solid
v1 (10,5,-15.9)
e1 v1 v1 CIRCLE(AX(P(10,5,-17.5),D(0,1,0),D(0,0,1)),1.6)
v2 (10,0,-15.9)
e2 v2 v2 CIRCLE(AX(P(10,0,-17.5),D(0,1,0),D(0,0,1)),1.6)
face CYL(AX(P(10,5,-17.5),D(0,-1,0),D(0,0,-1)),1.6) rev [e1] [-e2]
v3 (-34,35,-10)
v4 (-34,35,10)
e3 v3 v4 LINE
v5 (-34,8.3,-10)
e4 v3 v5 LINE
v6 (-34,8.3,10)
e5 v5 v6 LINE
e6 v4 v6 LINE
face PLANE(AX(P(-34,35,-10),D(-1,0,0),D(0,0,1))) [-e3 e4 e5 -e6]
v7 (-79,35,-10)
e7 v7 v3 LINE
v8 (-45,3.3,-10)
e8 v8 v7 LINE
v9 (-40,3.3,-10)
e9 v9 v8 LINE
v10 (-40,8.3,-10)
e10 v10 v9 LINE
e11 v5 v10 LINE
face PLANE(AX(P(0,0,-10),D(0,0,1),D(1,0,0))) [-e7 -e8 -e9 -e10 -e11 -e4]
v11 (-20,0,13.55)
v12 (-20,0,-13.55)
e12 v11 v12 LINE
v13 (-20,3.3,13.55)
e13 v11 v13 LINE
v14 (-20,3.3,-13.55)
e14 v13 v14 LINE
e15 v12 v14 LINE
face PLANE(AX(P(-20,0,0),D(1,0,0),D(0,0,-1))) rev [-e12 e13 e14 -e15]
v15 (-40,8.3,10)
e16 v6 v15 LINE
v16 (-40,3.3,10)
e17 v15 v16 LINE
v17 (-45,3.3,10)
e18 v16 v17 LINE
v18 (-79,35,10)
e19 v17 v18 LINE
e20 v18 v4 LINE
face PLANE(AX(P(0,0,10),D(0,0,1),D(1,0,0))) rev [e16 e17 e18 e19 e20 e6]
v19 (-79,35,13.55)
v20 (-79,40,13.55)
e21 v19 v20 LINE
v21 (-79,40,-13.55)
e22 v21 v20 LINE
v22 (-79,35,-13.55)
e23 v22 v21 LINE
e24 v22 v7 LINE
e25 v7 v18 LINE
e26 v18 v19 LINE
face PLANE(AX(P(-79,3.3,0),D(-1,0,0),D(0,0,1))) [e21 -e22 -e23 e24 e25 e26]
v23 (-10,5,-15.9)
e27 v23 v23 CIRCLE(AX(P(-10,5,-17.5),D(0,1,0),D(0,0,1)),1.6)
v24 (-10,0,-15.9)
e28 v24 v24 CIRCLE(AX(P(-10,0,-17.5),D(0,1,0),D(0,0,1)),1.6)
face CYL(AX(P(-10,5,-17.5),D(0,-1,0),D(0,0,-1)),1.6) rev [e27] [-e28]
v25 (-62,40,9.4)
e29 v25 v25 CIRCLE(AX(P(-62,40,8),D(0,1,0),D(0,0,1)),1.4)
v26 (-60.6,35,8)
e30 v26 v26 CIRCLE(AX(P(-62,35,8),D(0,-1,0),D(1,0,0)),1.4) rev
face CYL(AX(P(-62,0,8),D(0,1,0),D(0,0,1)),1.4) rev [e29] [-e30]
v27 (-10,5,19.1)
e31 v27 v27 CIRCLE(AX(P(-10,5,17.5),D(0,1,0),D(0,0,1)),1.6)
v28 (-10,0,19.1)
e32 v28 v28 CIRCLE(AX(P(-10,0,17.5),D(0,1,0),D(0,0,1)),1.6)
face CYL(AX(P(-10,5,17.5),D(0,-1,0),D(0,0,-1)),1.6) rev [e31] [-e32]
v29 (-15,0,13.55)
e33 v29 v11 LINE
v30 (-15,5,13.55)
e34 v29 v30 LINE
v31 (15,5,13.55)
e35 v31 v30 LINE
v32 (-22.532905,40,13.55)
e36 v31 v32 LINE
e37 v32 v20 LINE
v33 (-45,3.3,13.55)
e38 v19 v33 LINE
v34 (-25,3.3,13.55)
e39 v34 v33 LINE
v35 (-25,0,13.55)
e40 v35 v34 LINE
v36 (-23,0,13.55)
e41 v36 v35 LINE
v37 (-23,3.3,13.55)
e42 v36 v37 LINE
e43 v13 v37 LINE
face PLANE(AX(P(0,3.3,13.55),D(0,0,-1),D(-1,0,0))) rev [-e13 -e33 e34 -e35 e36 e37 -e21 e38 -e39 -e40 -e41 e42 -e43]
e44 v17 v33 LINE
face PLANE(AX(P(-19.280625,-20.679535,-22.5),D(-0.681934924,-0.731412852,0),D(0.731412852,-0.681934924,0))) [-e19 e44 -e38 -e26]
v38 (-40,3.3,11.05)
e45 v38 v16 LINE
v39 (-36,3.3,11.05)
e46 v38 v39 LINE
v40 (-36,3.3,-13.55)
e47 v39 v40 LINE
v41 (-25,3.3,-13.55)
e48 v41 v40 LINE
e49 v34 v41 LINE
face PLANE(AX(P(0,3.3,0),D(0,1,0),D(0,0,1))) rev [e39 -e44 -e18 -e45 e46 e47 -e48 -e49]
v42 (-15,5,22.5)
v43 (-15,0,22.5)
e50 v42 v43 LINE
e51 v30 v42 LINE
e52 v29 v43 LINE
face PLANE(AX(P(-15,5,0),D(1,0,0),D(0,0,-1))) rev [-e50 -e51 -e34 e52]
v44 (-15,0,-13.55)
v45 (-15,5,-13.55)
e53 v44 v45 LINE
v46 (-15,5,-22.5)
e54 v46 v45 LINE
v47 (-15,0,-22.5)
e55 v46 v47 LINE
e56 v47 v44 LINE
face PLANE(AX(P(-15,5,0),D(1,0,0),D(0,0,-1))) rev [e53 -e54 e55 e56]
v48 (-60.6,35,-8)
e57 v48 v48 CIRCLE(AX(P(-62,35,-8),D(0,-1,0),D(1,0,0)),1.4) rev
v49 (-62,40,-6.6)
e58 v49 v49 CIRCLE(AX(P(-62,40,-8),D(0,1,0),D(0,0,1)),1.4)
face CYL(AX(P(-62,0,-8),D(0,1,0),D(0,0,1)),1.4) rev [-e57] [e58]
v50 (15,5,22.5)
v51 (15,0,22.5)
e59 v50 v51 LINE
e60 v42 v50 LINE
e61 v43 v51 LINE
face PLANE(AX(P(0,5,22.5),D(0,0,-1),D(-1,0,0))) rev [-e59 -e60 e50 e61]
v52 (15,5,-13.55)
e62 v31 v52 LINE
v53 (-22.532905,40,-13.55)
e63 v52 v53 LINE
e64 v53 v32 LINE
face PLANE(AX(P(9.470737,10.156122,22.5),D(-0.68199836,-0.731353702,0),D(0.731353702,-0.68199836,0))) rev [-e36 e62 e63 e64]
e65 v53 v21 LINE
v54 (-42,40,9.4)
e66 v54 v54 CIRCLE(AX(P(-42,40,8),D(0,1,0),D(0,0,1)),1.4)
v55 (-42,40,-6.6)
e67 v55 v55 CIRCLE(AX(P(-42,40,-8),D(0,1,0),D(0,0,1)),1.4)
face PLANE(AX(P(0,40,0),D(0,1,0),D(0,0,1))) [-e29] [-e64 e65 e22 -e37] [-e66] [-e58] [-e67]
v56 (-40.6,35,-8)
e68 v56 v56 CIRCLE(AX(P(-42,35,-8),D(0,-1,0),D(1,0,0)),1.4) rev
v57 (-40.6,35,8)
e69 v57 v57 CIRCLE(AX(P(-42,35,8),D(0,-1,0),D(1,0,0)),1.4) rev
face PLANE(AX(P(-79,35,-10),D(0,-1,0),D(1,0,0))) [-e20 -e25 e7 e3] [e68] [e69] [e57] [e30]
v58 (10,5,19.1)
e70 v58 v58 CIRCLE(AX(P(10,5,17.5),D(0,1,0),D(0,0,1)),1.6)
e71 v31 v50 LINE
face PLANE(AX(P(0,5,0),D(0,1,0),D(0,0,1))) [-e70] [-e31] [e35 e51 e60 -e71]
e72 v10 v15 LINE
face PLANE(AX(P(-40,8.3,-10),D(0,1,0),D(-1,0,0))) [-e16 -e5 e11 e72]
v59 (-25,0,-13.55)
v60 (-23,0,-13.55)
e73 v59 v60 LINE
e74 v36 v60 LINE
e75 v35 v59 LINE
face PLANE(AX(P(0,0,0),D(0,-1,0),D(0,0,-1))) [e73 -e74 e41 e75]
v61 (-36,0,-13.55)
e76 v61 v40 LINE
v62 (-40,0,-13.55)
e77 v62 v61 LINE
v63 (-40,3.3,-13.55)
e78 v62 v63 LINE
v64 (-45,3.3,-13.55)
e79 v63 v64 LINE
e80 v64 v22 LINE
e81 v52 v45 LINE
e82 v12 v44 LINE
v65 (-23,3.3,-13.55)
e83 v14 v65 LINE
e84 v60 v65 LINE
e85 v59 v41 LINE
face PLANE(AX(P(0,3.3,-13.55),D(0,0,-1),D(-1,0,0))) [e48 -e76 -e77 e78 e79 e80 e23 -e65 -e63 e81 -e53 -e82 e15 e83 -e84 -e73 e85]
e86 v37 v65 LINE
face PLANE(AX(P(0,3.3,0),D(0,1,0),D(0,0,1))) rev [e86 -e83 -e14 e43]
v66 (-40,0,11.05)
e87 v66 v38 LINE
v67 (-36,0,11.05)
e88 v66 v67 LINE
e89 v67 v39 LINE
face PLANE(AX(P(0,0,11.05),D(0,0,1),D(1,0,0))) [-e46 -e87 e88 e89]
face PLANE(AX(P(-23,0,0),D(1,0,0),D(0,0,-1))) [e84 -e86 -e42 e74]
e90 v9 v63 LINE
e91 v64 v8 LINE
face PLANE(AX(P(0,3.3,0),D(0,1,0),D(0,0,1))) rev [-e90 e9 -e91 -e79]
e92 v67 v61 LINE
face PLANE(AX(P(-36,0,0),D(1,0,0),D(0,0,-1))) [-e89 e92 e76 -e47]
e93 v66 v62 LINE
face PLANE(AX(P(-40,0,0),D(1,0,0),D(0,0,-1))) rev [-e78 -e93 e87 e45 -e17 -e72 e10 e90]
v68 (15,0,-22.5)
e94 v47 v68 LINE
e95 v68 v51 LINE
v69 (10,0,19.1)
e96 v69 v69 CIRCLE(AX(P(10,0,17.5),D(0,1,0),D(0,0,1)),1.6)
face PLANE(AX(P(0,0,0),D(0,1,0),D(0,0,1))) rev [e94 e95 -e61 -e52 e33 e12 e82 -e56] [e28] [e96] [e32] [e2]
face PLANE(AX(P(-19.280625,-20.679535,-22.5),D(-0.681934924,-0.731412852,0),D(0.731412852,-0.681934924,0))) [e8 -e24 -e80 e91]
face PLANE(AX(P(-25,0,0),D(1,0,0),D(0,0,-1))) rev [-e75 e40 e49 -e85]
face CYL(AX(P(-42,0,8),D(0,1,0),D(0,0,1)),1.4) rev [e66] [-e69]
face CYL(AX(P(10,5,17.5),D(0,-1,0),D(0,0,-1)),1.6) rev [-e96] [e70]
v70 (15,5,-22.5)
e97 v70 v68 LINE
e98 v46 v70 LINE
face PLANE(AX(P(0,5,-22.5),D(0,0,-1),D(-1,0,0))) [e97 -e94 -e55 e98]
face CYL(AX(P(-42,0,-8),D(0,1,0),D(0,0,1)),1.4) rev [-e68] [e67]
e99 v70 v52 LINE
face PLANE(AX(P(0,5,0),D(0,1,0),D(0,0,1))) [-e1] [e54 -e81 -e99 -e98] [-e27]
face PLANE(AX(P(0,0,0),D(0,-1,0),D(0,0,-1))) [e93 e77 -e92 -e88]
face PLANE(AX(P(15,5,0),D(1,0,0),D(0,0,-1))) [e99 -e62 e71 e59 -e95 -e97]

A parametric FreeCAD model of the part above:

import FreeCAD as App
import Part
import Sketcher
Q = App.Units.Quantity


def add_polygon(sketch, points):
    """Adds a closed chain of lines whose ends are joined by coincident constraints."""
    first, n = sketch.GeometryCount, len(points)
    for a, b in zip(points, points[1:] + points[:1]):
        sketch.addGeometry(Part.LineSegment(App.Vector(*a, 0), App.Vector(*b, 0)), False)
    for i in range(n):
        sketch.addConstraint(Sketcher.Constraint("Coincident", first + i, 2, first + (i + 1) % n, 1))

doc = App.newDocument("Part")
body = doc.addObject("PartDesign::Body", "Body")

sketch1 = body.newObject("Sketcher::SketchObject", "Sketch")
sketch1.AttachmentSupport = (doc.getObject("XZ_Plane"), [""])
sketch1.MapMode = "FlatFace"
add_polygon(sketch1, [(-15, -22.5), (-15, 22.5), (15, 22.5), (15, -22.5)])
sketch1.addGeometry(Part.Circle(App.Vector(-10, 17.5, 0), App.Vector(0, 0, 1), 1.6), False)
sketch1.addGeometry(Part.Circle(App.Vector(10, 17.5, 0), App.Vector(0, 0, 1), 1.6), False)
sketch1.addGeometry(Part.Circle(App.Vector(-10, -17.5, 0), App.Vector(0, 0, 1), 1.6), False)
sketch1.addGeometry(Part.Circle(App.Vector(10, -17.5, 0), App.Vector(0, 0, 1), 1.6), False)
sketch1.addConstraint([
    Sketcher.Constraint("Vertical", 0),
    Sketcher.Constraint("Horizontal", 1),
    Sketcher.Constraint("Vertical", 2),
    Sketcher.Constraint("Horizontal", 3),
    Sketcher.Constraint("Equal", 4, 5),
    Sketcher.Constraint("Equal", 5, 6),
    Sketcher.Constraint("Equal", 6, 7),
    Sketcher.Constraint("Symmetric", 5, 3, 6, 3, -1, 1),
    Sketcher.Constraint("Symmetric", 4, 3, 7, 3, -1, 1),
    Sketcher.Constraint("Symmetric", 0, 2, 2, 2, -1, 1),
    Sketcher.Constraint("Symmetric", 4, 3, 5, 3, -2),
    Sketcher.Constraint("Diameter", 4, 3.2),
    Sketcher.Constraint("DistanceX", 1, 1, 1, 2, 30.0),
    Sketcher.Constraint("DistanceY", 0, 1, 0, 2, 45.0),
    Sketcher.Constraint("DistanceX", 4, 3, -1, 1, 10.0),
    Sketcher.Constraint("DistanceY", 6, 3, 4, 3, 35.0),
])
pad1 = body.newObject("PartDesign::Pad", "Pad")
pad1.Profile = sketch1
pad1.Length = 5
pad1.Reversed = True

sketch2 = body.newObject("Sketcher::SketchObject", "Sketch001")
sketch2.AttachmentSupport = (doc.getObject("XZ_Plane"), [""])
sketch2.MapMode = "FlatFace"
sketch2.AttachmentOffset = App.Placement(App.Vector(0, 0, -5), App.Rotation())
add_polygon(sketch2, [(-79, -14), (-79, 14), (15, 14), (15, -14)])
sketch2.addConstraint([
    Sketcher.Constraint("Vertical", 0),
    Sketcher.Constraint("Horizontal", 1),
    Sketcher.Constraint("Vertical", 2),
    Sketcher.Constraint("Horizontal", 3),
    Sketcher.Constraint("DistanceX", 1, 1, 1, 2, 94.0),
    Sketcher.Constraint("DistanceY", 0, 1, 0, 2, 27.1),
    Sketcher.Constraint("DistanceX", 0, 2, -1, 1, 79.0),
    Sketcher.Constraint("DistanceY", -1, 1, 0, 2, 13.55),
])
pad2 = body.newObject("PartDesign::Pad", "Pad001")
pad2.Profile = sketch2
pad2.Type = "TwoLengths"
pad2.Length = 35
pad2.Length2 = 1.7
pad2.Reversed = True

sketch3 = body.newObject("Sketcher::SketchObject", "Sketch002")
sketch3.AttachmentSupport = (doc.getObject("XZ_Plane"), [""])
sketch3.MapMode = "FlatFace"
sketch3.AttachmentOffset = App.Placement(App.Vector(0, 0, -3.3), App.Rotation())
add_polygon(sketch3, [(-40, 11.1), (-40, -13.6), (-36, -13.6), (-36, 11.1)])
add_polygon(sketch3, [(-20, 13.6), (-20, -13.6), (-15, -13.6), (-15, 13.6)])
add_polygon(sketch3, [(-25, 13.6), (-25, -13.6), (-23, -13.6), (-23, 13.6)])
sketch3.addConstraint([
    Sketcher.Constraint("Vertical", 0),
    Sketcher.Constraint("Horizontal", 1),
    Sketcher.Constraint("Vertical", 2),
    Sketcher.Constraint("Horizontal", 3),
    Sketcher.Constraint("Vertical", 4),
    Sketcher.Constraint("Horizontal", 5),
    Sketcher.Constraint("Vertical", 6),
    Sketcher.Constraint("Horizontal", 7),
    Sketcher.Constraint("Vertical", 8),
    Sketcher.Constraint("Horizontal", 9),
    Sketcher.Constraint("Vertical", 10),
    Sketcher.Constraint("Horizontal", 11),
    Sketcher.Constraint("Horizontal", 1, 2, 4, 2),
    Sketcher.Constraint("Horizontal", 5, 2, 8, 2),
    Sketcher.Constraint("Horizontal", 7, 2, 10, 2),
    Sketcher.Constraint("DistanceX", 1, 1, 1, 2, 4.0),
    Sketcher.Constraint("DistanceX", 5, 1, 5, 2, 5.0),
    Sketcher.Constraint("DistanceX", 9, 1, 9, 2, 2.0),
    Sketcher.Constraint("DistanceY", 0, 2, 0, 1, 24.6),
    Sketcher.Constraint("DistanceY", 4, 2, 4, 1, 27.1),
    Sketcher.Constraint("DistanceX", 0, 2, -1, 1, 40.0),
    Sketcher.Constraint("DistanceX", 4, 2, -1, 1, 20.0),
    Sketcher.Constraint("DistanceX", 8, 2, -1, 1, 25.0),
    Sketcher.Constraint("DistanceY", 0, 2, -1, 1, 13.55),
])
pad3 = body.newObject("PartDesign::Pad", "Pad002")
pad3.Profile = sketch3
pad3.Length = 3.3

sketch4 = body.newObject("Sketcher::SketchObject", "Sketch003")
sketch4.AttachmentSupport = (doc.getObject("XZ_Plane"), [""])
sketch4.MapMode = "FlatFace"
sketch4.AttachmentOffset = App.Placement(App.Vector(0, 0, -40), App.Rotation())
sketch4.addGeometry([
    Part.Circle(App.Vector(-62, -8, 0), App.Vector(0, 0, 1), 1.4),
    Part.Circle(App.Vector(-42, -8, 0), App.Vector(0, 0, 1), 1.4),
    Part.Circle(App.Vector(-42, 8, 0), App.Vector(0, 0, 1), 1.4),
    Part.Circle(App.Vector(-62, 8, 0), App.Vector(0, 0, 1), 1.4),
], False)
sketch4.addConstraint([
    Sketcher.Constraint("Equal", 0, 1),
    Sketcher.Constraint("Equal", 1, 2),
    Sketcher.Constraint("Equal", 2, 3),
    Sketcher.Constraint("Symmetric", 1, 3, 2, 3, -1),
    Sketcher.Constraint("Symmetric", 0, 3, 3, 3, -1),
    Sketcher.Constraint("Horizontal", 0, 3, 1, 3),
    Sketcher.Constraint("Diameter", 0, 2.8),
    Sketcher.Constraint("DistanceX", 0, 3, -1, 1, 62.0),
    Sketcher.Constraint("DistanceY", 0, 3, -1, 1, 8.0),
    Sketcher.Constraint("DistanceX", 1, 3, -1, 1, 42.0),
])
pocket1 = body.newObject("PartDesign::Pocket", "Pocket")
pocket1.Profile = sketch4
pocket1.Type = "ThroughAll"
pocket1.Reversed = True

sketch5 = body.newObject("Sketcher::SketchObject", "Sketch004")
sketch5.AttachmentSupport = (doc.getObject("XY_Plane"), [""])
sketch5.MapMode = "FlatFace"
sketch5.AttachmentOffset = App.Placement(App.Vector(0, 0, 13.55), App.Rotation())
add_polygon(sketch5, [(-45, 3), (-79, 35), (-79, 3)])
sketch5.addConstraint([
    Sketcher.Constraint("Vertical", 1),
    Sketcher.Constraint("Horizontal", 2),
    Sketcher.Constraint("DistanceX", 2, 1, 2, 2, 34.0),
    Sketcher.Constraint("DistanceY", 1, 2, 1, 1, 31.7),
    Sketcher.Constraint("DistanceX", 0, 2, -1, 1, 79.0),
    Sketcher.Constraint("DistanceY", -1, 1, 0, 2, 35.0),
])
pocket2 = body.newObject("PartDesign::Pocket", "Pocket001")
pocket2.Profile = sketch5
pocket2.Type = "ThroughAll"

sketch6 = body.newObject("Sketcher::SketchObject", "Sketch005")
sketch6.AttachmentSupport = (doc.getObject("XY_Plane"), [""])
sketch6.MapMode = "FlatFace"
add_polygon(sketch6, [(-79, 35), (-34, 35), (-34, 8), (-40, 8), (-40, 3), (-51, 3), (-51, 8), (-79, 8)])
sketch6.addConstraint([
    Sketcher.Constraint("Horizontal", 0),
    Sketcher.Constraint("Vertical", 1),
    Sketcher.Constraint("Horizontal", 2),
    Sketcher.Constraint("Vertical", 3),
    Sketcher.Constraint("Horizontal", 4),
    Sketcher.Constraint("Vertical", 5),
    Sketcher.Constraint("Horizontal", 6),
    Sketcher.Constraint("Vertical", 7),
    Sketcher.Constraint("Horizontal", 2, 2, 5, 2),
    Sketcher.Constraint("DistanceX", 0, 1, 0, 2, 45.0),
    Sketcher.Constraint("DistanceX", 2, 2, 2, 1, 6.0),
    Sketcher.Constraint("DistanceY", 3, 2, 3, 1, 5.0),
    Sketcher.Constraint("DistanceY", 1, 2, 1, 1, 26.7),
    Sketcher.Constraint("DistanceX", 0, 2, -1, 1, 34.0),
    Sketcher.Constraint("DistanceY", -1, 1, 0, 2, 35.0),
    Sketcher.Constraint("DistanceX", 4, 2, 4, 1, 11.306521),
])
pocket3 = body.newObject("PartDesign::Pocket", "Pocket002")
pocket3.Profile = sketch6
pocket3.Type = "TwoLengths"
pocket3.Length = 10
pocket3.Length2 = 10

sketch7 = body.newObject("Sketcher::SketchObject", "Sketch006")
sketch7.AttachmentSupport = (doc.getObject("XY_Plane"), [""])
sketch7.MapMode = "FlatFace"
sketch7.AttachmentOffset = App.Placement(App.Vector(0, 0, -13.55), App.Rotation())
add_polygon(sketch7, [(15, 40), (15, 5), (-23, 40)])
sketch7.addConstraint([
    Sketcher.Constraint("Vertical", 0),
    Sketcher.Constraint("Horizontal", 2),
    Sketcher.Constraint("DistanceY", 0, 2, 0, 1, 35.0),
    Sketcher.Constraint("Angle", 1, Q("137 deg")),
    Sketcher.Constraint("DistanceX", -1, 1, 0, 2, 15.0),
    Sketcher.Constraint("DistanceY", -1, 1, 0, 2, 5.0),
])
pocket4 = body.newObject("PartDesign::Pocket", "Pocket003")
pocket4.Profile = sketch7
pocket4.Type = "ThroughAll"
pocket4.Reversed = True

doc.recompute()
